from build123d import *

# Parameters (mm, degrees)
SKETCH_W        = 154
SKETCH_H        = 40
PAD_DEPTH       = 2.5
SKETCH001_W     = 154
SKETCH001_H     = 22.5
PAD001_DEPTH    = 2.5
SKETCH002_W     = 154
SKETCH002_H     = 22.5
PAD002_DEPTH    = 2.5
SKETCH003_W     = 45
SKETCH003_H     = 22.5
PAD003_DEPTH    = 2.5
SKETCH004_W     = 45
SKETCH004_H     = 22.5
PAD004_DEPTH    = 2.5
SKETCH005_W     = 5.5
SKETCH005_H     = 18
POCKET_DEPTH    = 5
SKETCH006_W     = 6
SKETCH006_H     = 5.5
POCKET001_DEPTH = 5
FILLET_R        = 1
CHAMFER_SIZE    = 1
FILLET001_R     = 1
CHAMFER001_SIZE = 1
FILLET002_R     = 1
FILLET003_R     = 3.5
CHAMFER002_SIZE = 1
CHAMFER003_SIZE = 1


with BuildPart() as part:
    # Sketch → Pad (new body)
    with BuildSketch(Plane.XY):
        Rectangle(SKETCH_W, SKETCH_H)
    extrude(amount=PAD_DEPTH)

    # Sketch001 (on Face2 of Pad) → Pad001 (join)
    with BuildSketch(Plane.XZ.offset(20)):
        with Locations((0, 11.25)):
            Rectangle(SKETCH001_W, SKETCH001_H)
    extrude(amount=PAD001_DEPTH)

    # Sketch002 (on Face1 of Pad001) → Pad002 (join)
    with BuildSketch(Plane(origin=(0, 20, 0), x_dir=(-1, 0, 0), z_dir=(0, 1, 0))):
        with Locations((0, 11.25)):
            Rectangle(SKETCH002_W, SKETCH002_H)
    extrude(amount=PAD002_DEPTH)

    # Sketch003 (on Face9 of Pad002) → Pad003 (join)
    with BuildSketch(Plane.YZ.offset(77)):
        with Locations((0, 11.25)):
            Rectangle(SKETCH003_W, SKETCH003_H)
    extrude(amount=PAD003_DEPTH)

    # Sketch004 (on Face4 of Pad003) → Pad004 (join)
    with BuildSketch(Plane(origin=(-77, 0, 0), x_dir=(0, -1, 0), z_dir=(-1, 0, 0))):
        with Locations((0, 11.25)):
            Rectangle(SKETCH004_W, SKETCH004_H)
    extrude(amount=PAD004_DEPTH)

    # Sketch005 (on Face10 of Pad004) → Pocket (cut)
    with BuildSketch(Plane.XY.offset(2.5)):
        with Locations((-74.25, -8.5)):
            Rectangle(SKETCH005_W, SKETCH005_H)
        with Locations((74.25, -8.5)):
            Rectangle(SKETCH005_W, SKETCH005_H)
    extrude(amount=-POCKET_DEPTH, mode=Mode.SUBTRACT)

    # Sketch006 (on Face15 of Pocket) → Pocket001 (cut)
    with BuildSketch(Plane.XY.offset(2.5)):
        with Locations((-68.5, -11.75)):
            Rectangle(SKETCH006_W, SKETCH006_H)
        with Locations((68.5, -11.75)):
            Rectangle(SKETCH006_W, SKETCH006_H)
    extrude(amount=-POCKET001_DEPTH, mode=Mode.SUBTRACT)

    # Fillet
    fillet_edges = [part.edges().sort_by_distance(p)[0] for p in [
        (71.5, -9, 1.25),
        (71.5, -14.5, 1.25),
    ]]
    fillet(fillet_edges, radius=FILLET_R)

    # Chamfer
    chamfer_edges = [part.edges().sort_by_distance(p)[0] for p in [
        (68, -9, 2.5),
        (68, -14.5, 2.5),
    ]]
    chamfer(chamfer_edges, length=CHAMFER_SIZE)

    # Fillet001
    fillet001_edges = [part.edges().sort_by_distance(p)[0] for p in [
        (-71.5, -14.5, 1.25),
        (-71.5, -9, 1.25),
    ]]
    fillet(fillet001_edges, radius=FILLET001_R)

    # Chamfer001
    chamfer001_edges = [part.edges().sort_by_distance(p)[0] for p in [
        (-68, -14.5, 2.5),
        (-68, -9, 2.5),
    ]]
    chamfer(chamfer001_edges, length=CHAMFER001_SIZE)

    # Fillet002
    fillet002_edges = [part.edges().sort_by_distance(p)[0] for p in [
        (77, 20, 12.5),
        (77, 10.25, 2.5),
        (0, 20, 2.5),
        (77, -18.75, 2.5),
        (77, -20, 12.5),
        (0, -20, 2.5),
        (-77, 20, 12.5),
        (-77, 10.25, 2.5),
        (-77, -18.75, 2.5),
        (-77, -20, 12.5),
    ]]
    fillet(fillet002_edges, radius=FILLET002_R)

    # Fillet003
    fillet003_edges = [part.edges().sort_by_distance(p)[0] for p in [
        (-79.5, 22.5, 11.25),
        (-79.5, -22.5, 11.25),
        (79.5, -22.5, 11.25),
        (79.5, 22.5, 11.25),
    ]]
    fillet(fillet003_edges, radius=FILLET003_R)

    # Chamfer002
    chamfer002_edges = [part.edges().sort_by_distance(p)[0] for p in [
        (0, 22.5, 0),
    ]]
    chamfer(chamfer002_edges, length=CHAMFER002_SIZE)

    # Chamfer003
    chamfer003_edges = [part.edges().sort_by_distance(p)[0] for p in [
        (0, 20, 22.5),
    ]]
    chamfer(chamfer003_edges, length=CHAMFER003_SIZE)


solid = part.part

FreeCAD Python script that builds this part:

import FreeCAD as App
import Part
import Sketcher
from FreeCAD import Vector
Q = App.Units.Quantity


def edges_at(feature, points):
    """Names of the edges that pass closest to the given points."""
    edges = feature.Shape.Edges
    near = lambda p: min(range(len(edges)), key=lambda i: edges[i].distToShape(Part.Vertex(*p))[0])
    return sorted({f"Edge{near(p) + 1}" for p in points})

doc = App.newDocument("Part")
params = doc.addObject("Spreadsheet::Sheet", "Params")
for row, (alias, value) in enumerate([
    ("sketch1_width", "154 mm"),
    ("sketch1_height", "40 mm"),
    ("pad1_length", "2.5 mm"),
    ("sketch2_width", "154 mm"),
    ("sketch2_height", "22.5 mm"),
    ("pad2_length", "2.5 mm"),
    ("sketch3_width", "154 mm"),
    ("sketch3_height", "22.5 mm"),
    ("pad3_length", "2.5 mm"),
    ("sketch4_width", "45 mm"),
    ("sketch4_height", "22.5 mm"),
    ("pad4_length", "2.5 mm"),
    ("sketch5_width", "45 mm"),
    ("sketch5_height", "22.5 mm"),
    ("pad5_length", "2.5 mm"),
    ("sketch6_height", "18 mm"),
    ("sketch6_width", "5.5 mm"),
    ("pocket1_length", "5 mm"),
    ("sketch7_width", "6 mm"),
    ("sketch7_height", "5.5 mm"),
    ("pocket2_length", "5 mm"),
    ("fillet_radius", "1 mm"),
    ("chamfer_size", "1 mm"),
    ("fillet2_radius", "1 mm"),
    ("chamfer2_size", "1 mm"),
    ("fillet3_radius", "1 mm"),
    ("fillet4_radius", "3.5 mm"),
    ("chamfer3_size", "1 mm"),
    ("chamfer4_size", "1 mm"),
], start=1):
    params.set(f"A{row}", alias)
    params.set(f"B{row}", "=" + value)
    params.setAlias(f"B{row}", alias)

body = doc.addObject("PartDesign::Body", "Body")

sketch1 = body.newObject("Sketcher::SketchObject", "Sketch")
sketch1.AttachmentSupport = (doc.getObject("XY_Plane"), [""])
sketch1.MapMode = "FlatFace"
sketch1.addGeometry([
    Part.LineSegment(Vector(-77, 20, 0), Vector(-77, -20, 0)),
    Part.LineSegment(Vector(-77, -20, 0), Vector(77, -20, 0)),
    Part.LineSegment(Vector(77, -20, 0), Vector(77, 20, 0)),
    Part.LineSegment(Vector(77, 20, 0), Vector(-77, 20, 0)),
], False)
sketch1.addConstraint([
    Sketcher.Constraint("Coincident", 0, 2, 1, 1),
    Sketcher.Constraint("Coincident", 1, 2, 2, 1),
    Sketcher.Constraint("Coincident", 2, 2, 3, 1),
    Sketcher.Constraint("Coincident", 3, 2, 0, 1),
    Sketcher.Constraint("Vertical", 0),
    Sketcher.Constraint("Horizontal", 1),
    Sketcher.Constraint("Vertical", 2),
    Sketcher.Constraint("Horizontal", 3),
    Sketcher.Constraint("Symmetric", 0, 2, 2, 2, -1, 1),
    Sketcher.Constraint("DistanceX", 1, 1, 1, 2, Q("154 mm")),
    Sketcher.Constraint("DistanceY", 0, 2, 0, 1, Q("40 mm")),
])
sketch1.setExpression("Constraints[9]", "Params.sketch1_width")
sketch1.setExpression("Constraints[10]", "Params.sketch1_height")
pad1 = body.newObject("PartDesign::Pad", "Pad")
pad1.Profile = sketch1
pad1.setExpression("Length", "Params.pad1_length")

sketch2 = body.newObject("Sketcher::SketchObject", "Sketch001")
sketch2.AttachmentSupport = (doc.getObject("XZ_Plane"), [""])
sketch2.MapMode = "FlatFace"
sketch2.AttachmentOffset = App.Placement(Vector(0, 0, 20), App.Rotation())
sketch2.addGeometry([
    Part.LineSegment(Vector(-77, 22, 0), Vector(-77, 0, 0)),
    Part.LineSegment(Vector(-77, 0, 0), Vector(77, 0, 0)),
    Part.LineSegment(Vector(77, 0, 0), Vector(77, 22, 0)),
    Part.LineSegment(Vector(77, 22, 0), Vector(-77, 22, 0)),
], False)
sketch2.addConstraint([
    Sketcher.Constraint("Coincident", 0, 2, 1, 1),
    Sketcher.Constraint("Coincident", 1, 2, 2, 1),
    Sketcher.Constraint("Coincident", 2, 2, 3, 1),
    Sketcher.Constraint("Coincident", 3, 2, 0, 1),
    Sketcher.Constraint("Vertical", 0),
    Sketcher.Constraint("Horizontal", 1),
    Sketcher.Constraint("Vertical", 2),
    Sketcher.Constraint("Horizontal", 3),
    Sketcher.Constraint("Symmetric", 0, 2, 1, 2, -1, 1),
    Sketcher.Constraint("DistanceX", 1, 1, 1, 2, Q("154 mm")),
    Sketcher.Constraint("DistanceY", 0, 2, 0, 1, Q("22.5 mm")),
])
sketch2.setExpression("Constraints[9]", "Params.sketch2_width")
sketch2.setExpression("Constraints[10]", "Params.sketch2_height")
pad2 = body.newObject("PartDesign::Pad", "Pad001")
pad2.Profile = sketch2
pad2.setExpression("Length", "Params.pad2_length")

sketch3 = body.newObject("Sketcher::SketchObject", "Sketch002")
sketch3.AttachmentSupport = (doc.getObject("XZ_Plane"), [""])
sketch3.MapMode = "FlatFace"
sketch3.AttachmentOffset = App.Placement(Vector(0, 0, -20), App.Rotation())
sketch3.addGeometry([
    Part.LineSegment(Vector(77, 22, 0), Vector(77, 0, 0)),
    Part.LineSegment(Vector(77, 0, 0), Vector(-77, 0, 0)),
    Part.LineSegment(Vector(-77, 0, 0), Vector(-77, 22, 0)),
    Part.LineSegment(Vector(-77, 22, 0), Vector(77, 22, 0)),
], False)
sketch3.addConstraint([
    Sketcher.Constraint("Coincident", 0, 2, 1, 1),
    Sketcher.Constraint("Coincident", 1, 2, 2, 1),
    Sketcher.Constraint("Coincident", 2, 2, 3, 1),
    Sketcher.Constraint("Coincident", 3, 2, 0, 1),
    Sketcher.Constraint("Vertical", 0),
    Sketcher.Constraint("Horizontal", 1),
    Sketcher.Constraint("Vertical", 2),
    Sketcher.Constraint("Horizontal", 3),
    Sketcher.Constraint("Symmetric", 0, 2, 1, 2, -1, 1),
    Sketcher.Constraint("DistanceX", 1, 2, 1, 1, Q("154 mm")),
    Sketcher.Constraint("DistanceY", 0, 2, 0, 1, Q("22.5 mm")),
])
sketch3.setExpression("Constraints[9]", "Params.sketch3_width")
sketch3.setExpression("Constraints[10]", "Params.sketch3_height")
pad3 = body.newObject("PartDesign::Pad", "Pad002")
pad3.Profile = sketch3
pad3.setExpression("Length", "Params.pad3_length")
pad3.Reversed = True

sketch4 = body.newObject("Sketcher::SketchObject", "Sketch003")
sketch4.AttachmentSupport = (doc.getObject("YZ_Plane"), [""])
sketch4.MapMode = "FlatFace"
sketch4.AttachmentOffset = App.Placement(Vector(0, 0, 77), App.Rotation())
sketch4.addGeometry([
    Part.LineSegment(Vector(-22, 22, 0), Vector(-22, 0, 0)),
    Part.LineSegment(Vector(-22, 0, 0), Vector(22, 0, 0)),
    Part.LineSegment(Vector(22, 0, 0), Vector(22, 22, 0)),
    Part.LineSegment(Vector(22, 22, 0), Vector(-22, 22, 0)),
], False)
sketch4.addConstraint([
    Sketcher.Constraint("Coincident", 0, 2, 1, 1),
    Sketcher.Constraint("Coincident", 1, 2, 2, 1),
    Sketcher.Constraint("Coincident", 2, 2, 3, 1),
    Sketcher.Constraint("Coincident", 3, 2, 0, 1),
    Sketcher.Constraint("Vertical", 0),
    Sketcher.Constraint("Horizontal", 1),
    Sketcher.Constraint("Vertical", 2),
    Sketcher.Constraint("Horizontal", 3),
    Sketcher.Constraint("Symmetric", 0, 2, 1, 2, -1, 1),
    Sketcher.Constraint("DistanceX", 1, 1, 1, 2, Q("45 mm")),
    Sketcher.Constraint("DistanceY", 0, 2, 0, 1, Q("22.5 mm")),
])
sketch4.setExpression("Constraints[9]", "Params.sketch4_width")
sketch4.setExpression("Constraints[10]", "Params.sketch4_height")
pad4 = body.newObject("PartDesign::Pad", "Pad003")
pad4.Profile = sketch4
pad4.setExpression("Length", "Params.pad4_length")

sketch5 = body.newObject("Sketcher::SketchObject", "Sketch004")
sketch5.AttachmentSupport = (doc.getObject("YZ_Plane"), [""])
sketch5.MapMode = "FlatFace"
sketch5.AttachmentOffset = App.Placement(Vector(0, 0, -77), App.Rotation())
sketch5.addGeometry([
    Part.LineSegment(Vector(22, 22, 0), Vector(22, 0, 0)),
    Part.LineSegment(Vector(22, 0, 0), Vector(-22, 0, 0)),
    Part.LineSegment(Vector(-22, 0, 0), Vector(-22, 22, 0)),
    Part.LineSegment(Vector(-22, 22, 0), Vector(22, 22, 0)),
], False)
sketch5.addConstraint([
    Sketcher.Constraint("Coincident", 0, 2, 1, 1),
    Sketcher.Constraint("Coincident", 1, 2, 2, 1),
    Sketcher.Constraint("Coincident", 2, 2, 3, 1),
    Sketcher.Constraint("Coincident", 3, 2, 0, 1),
    Sketcher.Constraint("Vertical", 0),
    Sketcher.Constraint("Horizontal", 1),
    Sketcher.Constraint("Vertical", 2),
    Sketcher.Constraint("Horizontal", 3),
    Sketcher.Constraint("Symmetric", 0, 2, 1, 2, -1, 1),
    Sketcher.Constraint("DistanceX", 1, 2, 1, 1, Q("45 mm")),
    Sketcher.Constraint("DistanceY", 0, 2, 0, 1, Q("22.5 mm")),
])
sketch5.setExpression("Constraints[9]", "Params.sketch5_width")
sketch5.setExpression("Constraints[10]", "Params.sketch5_height")
pad5 = body.newObject("PartDesign::Pad", "Pad004")
pad5.Profile = sketch5
pad5.setExpression("Length", "Params.pad5_length")
pad5.Reversed = True

sketch6 = body.newObject("Sketcher::SketchObject", "Sketch005")
sketch6.AttachmentSupport = (doc.getObject("XY_Plane"), [""])
sketch6.MapMode = "FlatFace"
sketch6.AttachmentOffset = App.Placement(Vector(0, 0, 2.5), App.Rotation())
sketch6.addGeometry([
    Part.LineSegment(Vector(-77, 0, 0), Vector(-77, -18, 0)),
    Part.LineSegment(Vector(-77, -18, 0), Vector(-72, -18, 0)),
    Part.LineSegment(Vector(-72, -18, 0), Vector(-72, 0, 0)),
    Part.LineSegment(Vector(-72, 0, 0), Vector(-77, 0, 0)),
    Part.LineSegment(Vector(72, 0, 0), Vector(72, -18, 0)),
    Part.LineSegment(Vector(72, -18, 0), Vector(77, -18, 0)),
    Part.LineSegment(Vector(77, -18, 0), Vector(77, 0, 0)),
    Part.LineSegment(Vector(77, 0, 0), Vector(72, 0, 0)),
], False)
sketch6.addConstraint([
    Sketcher.Constraint("Coincident", 0, 2, 1, 1),
    Sketcher.Constraint("Coincident", 1, 2, 2, 1),
    Sketcher.Constraint("Coincident", 2, 2, 3, 1),
    Sketcher.Constraint("Coincident", 3, 2, 0, 1),
    Sketcher.Constraint("Coincident", 4, 2, 5, 1),
    Sketcher.Constraint("Coincident", 5, 2, 6, 1),
    Sketcher.Constraint("Coincident", 6, 2, 7, 1),
    Sketcher.Constraint("Coincident", 7, 2, 4, 1),
    Sketcher.Constraint("Vertical", 0),
    Sketcher.Constraint("Horizontal", 1),
    Sketcher.Constraint("Vertical", 2),
    Sketcher.Constraint("Horizontal", 3),
    Sketcher.Constraint("Vertical", 4),
    Sketcher.Constraint("Horizontal", 5),
    Sketcher.Constraint("Vertical", 6),
    Sketcher.Constraint("Horizontal", 7),
    Sketcher.Constraint("Symmetric", 1, 2, 4, 2, -2),
    Sketcher.Constraint("Symmetric", 3, 2, 6, 2, -2),
    Sketcher.Constraint("DistanceY", 0, 2, 0, 1, Q("18 mm")),
    Sketcher.Constraint("DistanceX", 1, 1, 1, 2, Q("5.5 mm")),
    Sketcher.Constraint("DistanceX", 0, 2, -1, 1, Q("77 mm")),
    Sketcher.Constraint("DistanceY", 0, 2, -1, 1, Q("17.5 mm")),
])
sketch6.setExpression("Constraints[18]", "Params.sketch6_height")
sketch6.setExpression("Constraints[19]", "Params.sketch6_width")
pocket1 = body.newObject("PartDesign::Pocket", "Pocket")
pocket1.Profile = sketch6
pocket1.setExpression("Length", "Params.pocket1_length")

sketch7 = body.newObject("Sketcher::SketchObject", "Sketch006")
sketch7.AttachmentSupport = (doc.getObject("XY_Plane"), [""])
sketch7.MapMode = "FlatFace"
sketch7.AttachmentOffset = App.Placement(Vector(0, 0, 2.5), App.Rotation())
sketch7.addGeometry([
    Part.LineSegment(Vector(-72, -9, 0), Vector(-72, -14, 0)),
    Part.LineSegment(Vector(-72, -14, 0), Vector(-66, -14, 0)),
    Part.LineSegment(Vector(-66, -14, 0), Vector(-66, -9, 0)),
    Part.LineSegment(Vector(-66, -9, 0), Vector(-72, -9, 0)),
    Part.LineSegment(Vector(66, -9, 0), Vector(66, -14, 0)),
    Part.LineSegment(Vector(66, -14, 0), Vector(72, -14, 0)),
    Part.LineSegment(Vector(72, -14, 0), Vector(72, -9, 0)),
    Part.LineSegment(Vector(72, -9, 0), Vector(66, -9, 0)),
], False)
sketch7.addConstraint([
    Sketcher.Constraint("Coincident", 0, 2, 1, 1),
    Sketcher.Constraint("Coincident", 1, 2, 2, 1),
    Sketcher.Constraint("Coincident", 2, 2, 3, 1),
    Sketcher.Constraint("Coincident", 3, 2, 0, 1),
    Sketcher.Constraint("Coincident", 4, 2, 5, 1),
    Sketcher.Constraint("Coincident", 5, 2, 6, 1),
    Sketcher.Constraint("Coincident", 6, 2, 7, 1),
    Sketcher.Constraint("Coincident", 7, 2, 4, 1),
    Sketcher.Constraint("Vertical", 0),
    Sketcher.Constraint("Horizontal", 1),
    Sketcher.Constraint("Vertical", 2),
    Sketcher.Constraint("Horizontal", 3),
    Sketcher.Constraint("Vertical", 4),
    Sketcher.Constraint("Horizontal", 5),
    Sketcher.Constraint("Vertical", 6),
    Sketcher.Constraint("Horizontal", 7),
    Sketcher.Constraint("Symmetric", 1, 2, 4, 2, -2),
    Sketcher.Constraint("Symmetric", 3, 2, 6, 2, -2),
    Sketcher.Constraint("DistanceX", 1, 1, 1, 2, Q("6 mm")),
    Sketcher.Constraint("DistanceY", 0, 2, 0, 1, Q("5.5 mm")),
    Sketcher.Constraint("DistanceY", 2, 2, -1, 1, Q("9 mm")),
    Sketcher.Constraint("DistanceX", 1, 2, 4, 2, Q("131 mm")),
])
sketch7.setExpression("Constraints[18]", "Params.sketch7_width")
sketch7.setExpression("Constraints[19]", "Params.sketch7_height")
pocket2 = body.newObject("PartDesign::Pocket", "Pocket001")
pocket2.Profile = sketch7
pocket2.setExpression("Length", "Params.pocket2_length")
doc.recompute()

fillet = body.newObject("PartDesign::Fillet", "Fillet")
fillet.Base = (pocket2, edges_at(pocket2, [(71.5, -9, 1.25), (71.5, -14.5, 1.25)]))
fillet.setExpression("Radius", "Params.fillet_radius")
doc.recompute()

chamfer = body.newObject("PartDesign::Chamfer", "Chamfer")
chamfer.Base = (fillet, edges_at(fillet, [(68, -9, 2.5), (68, -14.5, 2.5)]))
chamfer.setExpression("Size", "Params.chamfer_size")
doc.recompute()

fillet2 = body.newObject("PartDesign::Fillet", "Fillet001")
fillet2.Base = (chamfer, edges_at(chamfer, [(-71.5, -14.5, 1.25), (-71.5, -9, 1.25)]))
fillet2.setExpression("Radius", "Params.fillet2_radius")
doc.recompute()

chamfer2 = body.newObject("PartDesign::Chamfer", "Chamfer001")
chamfer2.Base = (fillet2, edges_at(fillet2, [(-68, -14.5, 2.5), (-68, -9, 2.5)]))
chamfer2.setExpression("Size", "Params.chamfer2_size")
doc.recompute()

fillet3 = body.newObject("PartDesign::Fillet", "Fillet002")
fillet3.Base = (chamfer2, edges_at(chamfer2, [
    (77, 20, 12.5),
    (77, 10.25, 2.5),
    (0, 20, 2.5),
    (77, -18.75, 2.5),
    (77, -20, 12.5),
    (0, -20, 2.5),
    (-77, 20, 12.5),
    (-77, 10.25, 2.5),
    (-77, -18.75, 2.5),
    (-77, -20, 12.5),
]))
fillet3.setExpression("Radius", "Params.fillet3_radius")
doc.recompute()

fillet4 = body.newObject("PartDesign::Fillet", "Fillet003")
fillet4.Base = (fillet3, edges_at(fillet3, [
    (-79.5, 22.5, 11.25),
    (-79.5, -22.5, 11.25),
    (79.5, -22.5, 11.25),
    (79.5, 22.5, 11.25),
]))
fillet4.setExpression("Radius", "Params.fillet4_radius")
doc.recompute()

chamfer3 = body.newObject("PartDesign::Chamfer", "Chamfer002")
chamfer3.Base = (fillet4, edges_at(fillet4, [(0, 22.5, 0)]))
chamfer3.setExpression("Size", "Params.chamfer3_size")
doc.recompute()

chamfer4 = body.newObject("PartDesign::Chamfer", "Chamfer003")
chamfer4.Base = (chamfer3, edges_at(chamfer3, [(0, 20, 22.5)]))
chamfer4.setExpression("Size", "Params.chamfer4_size")

doc.recompute()
